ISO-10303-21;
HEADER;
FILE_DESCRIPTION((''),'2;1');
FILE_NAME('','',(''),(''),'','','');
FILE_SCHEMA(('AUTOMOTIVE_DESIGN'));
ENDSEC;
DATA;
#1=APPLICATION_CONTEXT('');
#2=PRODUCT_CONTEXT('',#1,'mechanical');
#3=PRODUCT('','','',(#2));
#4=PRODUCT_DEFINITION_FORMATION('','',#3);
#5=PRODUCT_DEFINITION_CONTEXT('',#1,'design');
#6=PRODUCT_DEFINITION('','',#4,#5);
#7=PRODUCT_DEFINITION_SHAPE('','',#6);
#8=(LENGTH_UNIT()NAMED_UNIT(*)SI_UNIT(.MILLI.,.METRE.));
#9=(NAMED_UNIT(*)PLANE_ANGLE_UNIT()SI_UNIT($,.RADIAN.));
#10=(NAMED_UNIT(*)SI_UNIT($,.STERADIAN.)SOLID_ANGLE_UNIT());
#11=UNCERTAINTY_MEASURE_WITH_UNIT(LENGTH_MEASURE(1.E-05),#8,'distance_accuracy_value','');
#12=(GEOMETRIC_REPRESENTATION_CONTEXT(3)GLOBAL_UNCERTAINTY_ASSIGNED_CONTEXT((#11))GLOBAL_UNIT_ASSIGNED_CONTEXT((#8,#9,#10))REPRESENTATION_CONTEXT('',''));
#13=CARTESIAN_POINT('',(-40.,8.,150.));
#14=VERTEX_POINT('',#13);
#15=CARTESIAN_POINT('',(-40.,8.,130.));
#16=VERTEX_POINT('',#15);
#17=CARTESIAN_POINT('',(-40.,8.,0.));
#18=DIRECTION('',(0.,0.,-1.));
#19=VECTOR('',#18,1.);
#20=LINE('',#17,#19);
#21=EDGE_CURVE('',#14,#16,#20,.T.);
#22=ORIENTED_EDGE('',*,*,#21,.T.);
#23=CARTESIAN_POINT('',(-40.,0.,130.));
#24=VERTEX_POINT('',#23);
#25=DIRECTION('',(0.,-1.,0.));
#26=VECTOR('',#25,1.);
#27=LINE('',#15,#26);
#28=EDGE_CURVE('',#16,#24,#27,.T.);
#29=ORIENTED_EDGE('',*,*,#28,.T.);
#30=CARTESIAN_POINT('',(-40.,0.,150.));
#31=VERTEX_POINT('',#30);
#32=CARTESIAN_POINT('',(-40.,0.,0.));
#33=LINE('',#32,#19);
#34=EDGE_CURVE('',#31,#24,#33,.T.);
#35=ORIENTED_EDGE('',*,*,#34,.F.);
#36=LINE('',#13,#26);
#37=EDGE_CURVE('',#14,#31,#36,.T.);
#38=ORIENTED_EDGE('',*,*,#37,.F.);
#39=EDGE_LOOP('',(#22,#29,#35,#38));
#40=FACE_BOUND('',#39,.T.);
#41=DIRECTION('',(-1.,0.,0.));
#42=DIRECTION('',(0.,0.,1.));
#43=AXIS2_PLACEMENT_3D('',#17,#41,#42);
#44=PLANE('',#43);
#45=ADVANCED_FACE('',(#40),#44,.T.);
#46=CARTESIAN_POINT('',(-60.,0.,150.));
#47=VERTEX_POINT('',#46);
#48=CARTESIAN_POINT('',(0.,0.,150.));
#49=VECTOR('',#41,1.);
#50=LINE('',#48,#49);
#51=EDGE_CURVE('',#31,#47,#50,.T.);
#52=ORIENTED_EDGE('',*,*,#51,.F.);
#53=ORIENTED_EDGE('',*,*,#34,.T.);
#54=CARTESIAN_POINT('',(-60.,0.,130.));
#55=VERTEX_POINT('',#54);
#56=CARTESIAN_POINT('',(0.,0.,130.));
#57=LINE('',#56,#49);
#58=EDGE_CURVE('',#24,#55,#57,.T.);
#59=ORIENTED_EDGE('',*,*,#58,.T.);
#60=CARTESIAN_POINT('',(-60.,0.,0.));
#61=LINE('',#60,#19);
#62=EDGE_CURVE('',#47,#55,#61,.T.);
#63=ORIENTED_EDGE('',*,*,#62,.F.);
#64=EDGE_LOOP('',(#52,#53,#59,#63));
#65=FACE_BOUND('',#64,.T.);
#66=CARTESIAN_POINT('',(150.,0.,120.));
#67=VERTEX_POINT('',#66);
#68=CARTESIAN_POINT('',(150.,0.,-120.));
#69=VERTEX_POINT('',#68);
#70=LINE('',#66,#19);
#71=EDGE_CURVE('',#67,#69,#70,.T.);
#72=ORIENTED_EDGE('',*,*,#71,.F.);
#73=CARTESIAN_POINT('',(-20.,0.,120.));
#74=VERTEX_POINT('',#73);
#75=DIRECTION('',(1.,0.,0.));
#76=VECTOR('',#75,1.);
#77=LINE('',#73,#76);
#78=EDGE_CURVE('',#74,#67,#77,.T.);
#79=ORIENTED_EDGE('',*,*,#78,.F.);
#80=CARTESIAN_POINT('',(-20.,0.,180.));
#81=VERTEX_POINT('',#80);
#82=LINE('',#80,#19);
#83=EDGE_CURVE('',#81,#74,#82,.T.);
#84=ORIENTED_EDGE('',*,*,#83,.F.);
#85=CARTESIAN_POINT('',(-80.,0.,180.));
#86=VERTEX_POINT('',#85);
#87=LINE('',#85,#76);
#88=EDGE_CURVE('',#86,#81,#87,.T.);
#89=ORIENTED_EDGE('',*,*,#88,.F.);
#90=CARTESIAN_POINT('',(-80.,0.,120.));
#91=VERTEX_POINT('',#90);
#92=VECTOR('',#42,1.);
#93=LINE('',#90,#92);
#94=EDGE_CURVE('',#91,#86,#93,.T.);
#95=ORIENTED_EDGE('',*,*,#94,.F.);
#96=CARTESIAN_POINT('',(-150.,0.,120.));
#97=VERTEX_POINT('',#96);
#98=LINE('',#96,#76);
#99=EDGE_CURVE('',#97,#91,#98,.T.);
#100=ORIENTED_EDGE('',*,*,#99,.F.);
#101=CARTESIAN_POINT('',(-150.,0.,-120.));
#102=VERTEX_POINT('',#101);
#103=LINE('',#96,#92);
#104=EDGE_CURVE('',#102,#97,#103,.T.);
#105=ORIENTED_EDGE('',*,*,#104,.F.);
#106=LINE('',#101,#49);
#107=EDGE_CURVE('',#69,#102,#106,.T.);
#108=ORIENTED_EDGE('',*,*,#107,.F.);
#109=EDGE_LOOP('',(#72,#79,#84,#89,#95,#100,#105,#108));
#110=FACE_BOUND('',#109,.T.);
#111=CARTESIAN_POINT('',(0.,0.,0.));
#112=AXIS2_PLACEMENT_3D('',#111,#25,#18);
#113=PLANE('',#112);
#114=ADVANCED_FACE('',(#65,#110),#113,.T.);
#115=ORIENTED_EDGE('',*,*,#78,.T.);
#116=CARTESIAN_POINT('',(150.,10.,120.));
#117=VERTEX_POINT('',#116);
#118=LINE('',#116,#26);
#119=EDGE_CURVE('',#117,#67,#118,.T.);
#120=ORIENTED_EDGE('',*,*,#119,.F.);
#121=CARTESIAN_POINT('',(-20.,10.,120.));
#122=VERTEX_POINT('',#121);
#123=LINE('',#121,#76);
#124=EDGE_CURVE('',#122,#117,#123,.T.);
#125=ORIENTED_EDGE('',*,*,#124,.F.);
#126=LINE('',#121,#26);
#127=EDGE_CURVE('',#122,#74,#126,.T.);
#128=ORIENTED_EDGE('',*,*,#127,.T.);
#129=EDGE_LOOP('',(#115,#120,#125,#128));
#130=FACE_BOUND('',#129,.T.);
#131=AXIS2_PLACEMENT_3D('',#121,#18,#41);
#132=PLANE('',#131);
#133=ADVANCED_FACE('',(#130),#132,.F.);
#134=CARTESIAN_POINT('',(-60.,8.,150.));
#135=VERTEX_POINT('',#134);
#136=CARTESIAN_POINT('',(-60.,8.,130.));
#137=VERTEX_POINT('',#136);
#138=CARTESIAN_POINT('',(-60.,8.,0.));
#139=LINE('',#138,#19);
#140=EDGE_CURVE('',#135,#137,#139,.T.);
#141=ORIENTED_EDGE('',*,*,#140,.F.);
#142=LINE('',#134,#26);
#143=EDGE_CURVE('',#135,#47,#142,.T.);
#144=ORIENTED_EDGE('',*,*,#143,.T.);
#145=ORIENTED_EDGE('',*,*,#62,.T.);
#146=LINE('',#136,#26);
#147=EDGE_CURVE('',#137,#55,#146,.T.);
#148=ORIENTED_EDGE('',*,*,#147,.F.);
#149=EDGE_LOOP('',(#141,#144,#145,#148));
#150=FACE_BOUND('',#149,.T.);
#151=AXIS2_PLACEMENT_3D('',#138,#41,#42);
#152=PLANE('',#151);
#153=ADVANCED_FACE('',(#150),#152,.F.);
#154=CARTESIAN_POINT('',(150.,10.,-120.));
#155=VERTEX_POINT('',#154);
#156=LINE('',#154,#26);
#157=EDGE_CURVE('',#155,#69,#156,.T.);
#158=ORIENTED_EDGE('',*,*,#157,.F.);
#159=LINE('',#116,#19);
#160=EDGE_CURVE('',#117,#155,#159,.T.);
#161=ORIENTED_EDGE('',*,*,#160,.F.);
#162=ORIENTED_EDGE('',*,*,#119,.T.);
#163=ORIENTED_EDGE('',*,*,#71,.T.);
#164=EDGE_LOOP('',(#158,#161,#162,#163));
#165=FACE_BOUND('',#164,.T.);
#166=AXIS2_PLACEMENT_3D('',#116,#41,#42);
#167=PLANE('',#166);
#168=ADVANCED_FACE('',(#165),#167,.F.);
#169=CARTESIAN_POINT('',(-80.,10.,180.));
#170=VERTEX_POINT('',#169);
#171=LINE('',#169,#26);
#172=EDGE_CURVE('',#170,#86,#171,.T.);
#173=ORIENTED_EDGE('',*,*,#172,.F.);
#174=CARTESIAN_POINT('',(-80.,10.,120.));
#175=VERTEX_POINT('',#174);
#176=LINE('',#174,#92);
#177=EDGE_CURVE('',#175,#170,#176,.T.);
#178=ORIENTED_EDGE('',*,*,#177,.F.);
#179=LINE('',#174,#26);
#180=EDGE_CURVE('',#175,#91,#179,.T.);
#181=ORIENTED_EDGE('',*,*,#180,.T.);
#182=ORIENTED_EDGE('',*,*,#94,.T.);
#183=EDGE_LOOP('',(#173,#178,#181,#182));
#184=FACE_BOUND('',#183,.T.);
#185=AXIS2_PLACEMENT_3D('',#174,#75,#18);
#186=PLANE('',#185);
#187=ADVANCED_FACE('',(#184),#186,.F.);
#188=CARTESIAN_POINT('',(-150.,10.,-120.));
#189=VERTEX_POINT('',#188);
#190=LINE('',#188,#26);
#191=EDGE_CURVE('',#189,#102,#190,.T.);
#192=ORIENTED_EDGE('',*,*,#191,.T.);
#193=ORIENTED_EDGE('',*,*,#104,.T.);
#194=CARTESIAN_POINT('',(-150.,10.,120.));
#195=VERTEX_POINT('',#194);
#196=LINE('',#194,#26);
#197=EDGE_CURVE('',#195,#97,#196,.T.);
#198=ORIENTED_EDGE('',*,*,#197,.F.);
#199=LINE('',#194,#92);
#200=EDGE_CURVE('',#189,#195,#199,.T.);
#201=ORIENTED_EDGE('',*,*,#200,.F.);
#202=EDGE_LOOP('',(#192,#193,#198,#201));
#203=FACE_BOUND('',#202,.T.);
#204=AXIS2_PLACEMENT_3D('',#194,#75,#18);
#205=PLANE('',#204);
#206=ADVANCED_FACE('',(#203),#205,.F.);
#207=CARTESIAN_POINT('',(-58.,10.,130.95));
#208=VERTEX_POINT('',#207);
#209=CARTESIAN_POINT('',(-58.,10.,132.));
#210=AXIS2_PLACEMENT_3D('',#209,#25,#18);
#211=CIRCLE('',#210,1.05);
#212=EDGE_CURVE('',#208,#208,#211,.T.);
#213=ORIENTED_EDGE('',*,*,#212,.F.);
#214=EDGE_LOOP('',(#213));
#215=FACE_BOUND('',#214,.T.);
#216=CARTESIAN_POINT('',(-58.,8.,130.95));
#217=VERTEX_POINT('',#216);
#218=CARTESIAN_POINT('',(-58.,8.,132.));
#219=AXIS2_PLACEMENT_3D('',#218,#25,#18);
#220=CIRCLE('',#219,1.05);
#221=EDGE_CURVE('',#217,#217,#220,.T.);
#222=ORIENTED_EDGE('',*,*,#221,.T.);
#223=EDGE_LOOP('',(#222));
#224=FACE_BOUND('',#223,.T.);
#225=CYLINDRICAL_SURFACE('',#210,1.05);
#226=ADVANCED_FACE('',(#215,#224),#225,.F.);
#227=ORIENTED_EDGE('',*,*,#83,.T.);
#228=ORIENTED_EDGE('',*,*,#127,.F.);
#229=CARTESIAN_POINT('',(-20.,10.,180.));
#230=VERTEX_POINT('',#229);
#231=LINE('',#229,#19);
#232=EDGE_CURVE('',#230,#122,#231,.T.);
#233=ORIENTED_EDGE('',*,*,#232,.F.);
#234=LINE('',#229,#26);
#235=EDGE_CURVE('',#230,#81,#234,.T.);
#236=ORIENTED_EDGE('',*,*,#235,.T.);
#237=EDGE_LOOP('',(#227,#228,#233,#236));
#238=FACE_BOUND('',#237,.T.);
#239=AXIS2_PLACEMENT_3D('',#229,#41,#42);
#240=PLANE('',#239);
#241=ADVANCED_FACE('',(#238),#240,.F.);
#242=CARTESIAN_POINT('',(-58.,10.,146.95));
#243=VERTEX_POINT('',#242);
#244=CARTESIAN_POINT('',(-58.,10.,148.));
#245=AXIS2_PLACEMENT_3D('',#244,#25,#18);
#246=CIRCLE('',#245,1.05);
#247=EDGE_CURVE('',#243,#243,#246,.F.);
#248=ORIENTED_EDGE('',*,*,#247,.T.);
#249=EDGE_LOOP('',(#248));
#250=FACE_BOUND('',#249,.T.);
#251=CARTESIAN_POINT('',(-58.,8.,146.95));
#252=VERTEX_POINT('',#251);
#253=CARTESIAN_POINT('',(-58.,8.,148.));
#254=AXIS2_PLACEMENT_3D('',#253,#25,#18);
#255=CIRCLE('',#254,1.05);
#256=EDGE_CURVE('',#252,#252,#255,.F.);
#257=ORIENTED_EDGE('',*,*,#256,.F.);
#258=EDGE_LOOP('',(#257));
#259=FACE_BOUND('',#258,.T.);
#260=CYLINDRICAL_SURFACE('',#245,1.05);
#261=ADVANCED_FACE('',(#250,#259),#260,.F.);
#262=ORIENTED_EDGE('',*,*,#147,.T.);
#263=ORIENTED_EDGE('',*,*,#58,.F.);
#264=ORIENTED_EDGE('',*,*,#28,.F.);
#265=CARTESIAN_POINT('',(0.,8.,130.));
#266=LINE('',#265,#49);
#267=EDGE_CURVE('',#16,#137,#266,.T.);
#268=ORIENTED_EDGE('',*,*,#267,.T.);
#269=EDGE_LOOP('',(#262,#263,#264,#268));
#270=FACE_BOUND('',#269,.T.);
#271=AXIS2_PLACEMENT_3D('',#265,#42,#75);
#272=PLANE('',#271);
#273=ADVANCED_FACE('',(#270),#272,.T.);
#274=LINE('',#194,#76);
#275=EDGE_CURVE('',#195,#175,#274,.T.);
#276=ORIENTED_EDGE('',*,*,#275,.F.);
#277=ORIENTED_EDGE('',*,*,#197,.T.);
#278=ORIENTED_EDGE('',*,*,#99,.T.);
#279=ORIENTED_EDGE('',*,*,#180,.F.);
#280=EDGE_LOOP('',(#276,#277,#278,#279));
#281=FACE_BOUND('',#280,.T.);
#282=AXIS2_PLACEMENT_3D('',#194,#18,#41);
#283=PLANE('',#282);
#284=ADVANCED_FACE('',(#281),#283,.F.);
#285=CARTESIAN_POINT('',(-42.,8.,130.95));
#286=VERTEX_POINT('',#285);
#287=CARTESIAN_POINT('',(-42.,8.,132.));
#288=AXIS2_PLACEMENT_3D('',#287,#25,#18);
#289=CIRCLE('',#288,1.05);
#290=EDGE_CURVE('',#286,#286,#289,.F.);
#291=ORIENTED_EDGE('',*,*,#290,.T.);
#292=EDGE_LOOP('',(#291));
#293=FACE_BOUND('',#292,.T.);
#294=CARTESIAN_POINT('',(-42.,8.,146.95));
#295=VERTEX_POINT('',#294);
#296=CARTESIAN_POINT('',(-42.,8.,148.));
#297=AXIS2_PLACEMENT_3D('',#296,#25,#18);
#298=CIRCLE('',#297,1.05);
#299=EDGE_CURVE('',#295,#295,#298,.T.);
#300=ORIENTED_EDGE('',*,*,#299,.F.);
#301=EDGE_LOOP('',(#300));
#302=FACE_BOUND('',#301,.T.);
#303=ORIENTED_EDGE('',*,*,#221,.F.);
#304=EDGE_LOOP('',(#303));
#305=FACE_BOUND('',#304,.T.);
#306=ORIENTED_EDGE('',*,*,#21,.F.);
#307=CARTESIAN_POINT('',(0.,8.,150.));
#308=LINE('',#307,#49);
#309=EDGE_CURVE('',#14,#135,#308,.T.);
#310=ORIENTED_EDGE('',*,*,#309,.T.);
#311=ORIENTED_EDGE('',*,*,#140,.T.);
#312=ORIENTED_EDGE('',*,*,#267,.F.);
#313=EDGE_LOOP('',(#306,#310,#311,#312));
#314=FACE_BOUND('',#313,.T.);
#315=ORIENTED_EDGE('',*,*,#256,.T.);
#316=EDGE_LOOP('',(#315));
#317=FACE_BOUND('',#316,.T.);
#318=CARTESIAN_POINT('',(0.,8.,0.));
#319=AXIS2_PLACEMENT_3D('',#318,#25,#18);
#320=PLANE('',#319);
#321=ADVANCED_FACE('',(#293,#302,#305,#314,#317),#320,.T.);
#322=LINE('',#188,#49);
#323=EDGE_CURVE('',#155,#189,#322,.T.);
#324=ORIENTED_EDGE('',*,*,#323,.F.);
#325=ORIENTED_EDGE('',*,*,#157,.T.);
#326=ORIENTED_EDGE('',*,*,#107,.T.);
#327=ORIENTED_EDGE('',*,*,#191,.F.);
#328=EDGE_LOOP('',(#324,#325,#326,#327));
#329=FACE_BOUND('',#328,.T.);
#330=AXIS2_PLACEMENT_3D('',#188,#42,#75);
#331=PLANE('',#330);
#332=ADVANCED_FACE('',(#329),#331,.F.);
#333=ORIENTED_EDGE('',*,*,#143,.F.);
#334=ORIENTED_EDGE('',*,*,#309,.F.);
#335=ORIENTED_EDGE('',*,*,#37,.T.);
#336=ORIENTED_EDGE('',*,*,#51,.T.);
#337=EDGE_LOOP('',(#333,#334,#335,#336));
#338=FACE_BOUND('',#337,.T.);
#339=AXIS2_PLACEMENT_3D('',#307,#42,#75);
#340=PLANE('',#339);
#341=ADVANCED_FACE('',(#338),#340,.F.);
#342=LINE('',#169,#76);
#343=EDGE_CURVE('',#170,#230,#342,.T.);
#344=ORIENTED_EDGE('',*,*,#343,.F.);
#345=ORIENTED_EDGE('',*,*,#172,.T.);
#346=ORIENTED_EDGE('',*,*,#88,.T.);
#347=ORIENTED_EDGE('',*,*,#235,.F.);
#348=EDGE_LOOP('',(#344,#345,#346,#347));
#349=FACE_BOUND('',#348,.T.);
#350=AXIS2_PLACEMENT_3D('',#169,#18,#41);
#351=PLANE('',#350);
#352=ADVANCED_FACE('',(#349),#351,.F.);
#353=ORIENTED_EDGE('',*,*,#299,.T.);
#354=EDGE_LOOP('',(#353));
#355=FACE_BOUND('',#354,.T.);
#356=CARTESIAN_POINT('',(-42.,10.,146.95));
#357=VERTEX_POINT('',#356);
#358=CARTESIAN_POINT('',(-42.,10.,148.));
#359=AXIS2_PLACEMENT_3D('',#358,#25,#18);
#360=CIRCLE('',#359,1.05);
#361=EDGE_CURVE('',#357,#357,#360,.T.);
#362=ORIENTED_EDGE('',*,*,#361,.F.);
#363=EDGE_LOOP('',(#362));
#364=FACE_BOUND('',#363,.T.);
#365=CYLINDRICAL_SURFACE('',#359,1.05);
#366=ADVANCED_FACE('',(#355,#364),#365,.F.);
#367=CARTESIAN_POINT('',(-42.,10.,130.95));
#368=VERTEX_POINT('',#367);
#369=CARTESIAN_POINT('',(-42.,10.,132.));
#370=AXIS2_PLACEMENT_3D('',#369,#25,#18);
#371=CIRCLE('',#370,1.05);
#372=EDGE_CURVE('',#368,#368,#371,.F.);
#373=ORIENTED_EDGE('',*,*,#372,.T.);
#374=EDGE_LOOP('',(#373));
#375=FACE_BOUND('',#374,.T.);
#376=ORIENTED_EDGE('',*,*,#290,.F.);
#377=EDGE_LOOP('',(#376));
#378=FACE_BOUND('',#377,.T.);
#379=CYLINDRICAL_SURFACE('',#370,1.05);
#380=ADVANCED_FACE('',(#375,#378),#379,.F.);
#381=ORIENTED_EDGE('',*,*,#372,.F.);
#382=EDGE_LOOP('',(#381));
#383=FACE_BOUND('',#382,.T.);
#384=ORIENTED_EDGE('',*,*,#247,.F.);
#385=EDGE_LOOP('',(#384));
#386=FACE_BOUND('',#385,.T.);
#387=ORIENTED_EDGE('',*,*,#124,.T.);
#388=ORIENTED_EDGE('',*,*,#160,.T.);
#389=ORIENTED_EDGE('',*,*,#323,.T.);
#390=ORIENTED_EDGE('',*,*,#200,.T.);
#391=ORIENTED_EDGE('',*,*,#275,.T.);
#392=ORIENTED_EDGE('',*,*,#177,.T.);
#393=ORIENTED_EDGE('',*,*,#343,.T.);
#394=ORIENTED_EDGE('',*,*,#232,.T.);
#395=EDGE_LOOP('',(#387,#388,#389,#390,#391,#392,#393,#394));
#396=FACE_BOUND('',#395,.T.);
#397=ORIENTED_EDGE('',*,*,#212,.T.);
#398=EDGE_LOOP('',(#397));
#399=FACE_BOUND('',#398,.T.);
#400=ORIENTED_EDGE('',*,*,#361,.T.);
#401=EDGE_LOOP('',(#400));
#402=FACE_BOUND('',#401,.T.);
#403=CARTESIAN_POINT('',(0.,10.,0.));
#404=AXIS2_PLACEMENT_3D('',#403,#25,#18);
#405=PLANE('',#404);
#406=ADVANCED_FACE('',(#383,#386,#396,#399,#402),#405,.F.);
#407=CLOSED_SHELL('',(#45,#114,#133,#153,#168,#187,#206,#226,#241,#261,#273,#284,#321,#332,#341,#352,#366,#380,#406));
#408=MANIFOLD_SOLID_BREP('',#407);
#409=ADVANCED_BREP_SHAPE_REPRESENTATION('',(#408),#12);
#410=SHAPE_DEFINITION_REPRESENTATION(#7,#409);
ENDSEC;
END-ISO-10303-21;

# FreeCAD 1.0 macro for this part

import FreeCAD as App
import Part
import Sketcher
from FreeCAD import Vector
Q = App.Units.Quantity


def add_polygon(sketch, points):
    """Adds a closed chain of lines whose ends are joined by coincident constraints."""
    first, n = sketch.GeometryCount, len(points)
    for a, b in zip(points, points[1:] + points[:1]):
        sketch.addGeometry(Part.LineSegment(App.Vector(*a, 0), App.Vector(*b, 0)), False)
    for i in range(n):
        sketch.addConstraint(Sketcher.Constraint("Coincident", first + i, 2, first + (i + 1) % n, 1))

doc = App.newDocument("Part")
body = doc.addObject("PartDesign::Body", "Body")

# Sketch on XZ plane
sketch1 = doc.addObject("Sketcher::SketchObject", "Sketch")
body.addObject(sketch1)
sketch1.AttachmentSupport = (doc.XZ_Plane, [""])
sketch1.MapMode = "FlatFace"
add_polygon(sketch1, [(-150, 120), (-80, 120), (-80, 180), (-20, 180), (-20, 120), (150, 120), (150, -120), (-150, -120)])  # lines 0-7
sketch1.addConstraint(Sketcher.Constraint("Horizontal", 0))
sketch1.addConstraint(Sketcher.Constraint("Vertical", 1))
sketch1.addConstraint(Sketcher.Constraint("Horizontal", 2))
sketch1.addConstraint(Sketcher.Constraint("Vertical", 3))
sketch1.addConstraint(Sketcher.Constraint("Horizontal", 4))
sketch1.addConstraint(Sketcher.Constraint("Vertical", 5))
sketch1.addConstraint(Sketcher.Constraint("Horizontal", 6))
sketch1.addConstraint(Sketcher.Constraint("Vertical", 7))
sketch1.addConstraint(Sketcher.Constraint("Symmetric", 4, 2, 6, 2, -1, 1))
sketch1.addConstraint(Sketcher.Constraint("Horizontal", 0, 2, 3, 2))
sketch1.addConstraint(Sketcher.Constraint("Equal", 2, 1))
sketch1.addConstraint(Sketcher.Constraint("DistanceX", 0, 1, 0, 2, Q("70 mm")))
sketch1.addConstraint(Sketcher.Constraint("DistanceX", 2, 1, 2, 2, Q("60 mm")))
sketch1.addConstraint(Sketcher.Constraint("DistanceX", 4, 1, 4, 2, Q("170 mm")))
sketch1.addConstraint(Sketcher.Constraint("DistanceY", 5, 2, 5, 1, Q("240 mm")))
pad1 = doc.addObject("PartDesign::Pad", "Pad")
body.addObject(pad1)
pad1.Profile = sketch1
pad1.Length = 10
pad1.Reversed = True

# Sketch on XZ plane
sketch2 = doc.addObject("Sketcher::SketchObject", "Sketch001")
body.addObject(sketch2)
sketch2.AttachmentSupport = (doc.XZ_Plane, [""])
sketch2.MapMode = "FlatFace"
add_polygon(sketch2, [(-60, 150), (-60, 130), (-40, 130), (-40, 150)])  # lines 0-3
sketch2.addGeometry(Part.Circle(Vector(-58, 132, 0), Vector(0, 0, 1), 1.1), False)  # 4
sketch2.addGeometry(Part.Circle(Vector(-42, 132, 0), Vector(0, 0, 1), 1.1), False)  # 5
sketch2.addGeometry(Part.Circle(Vector(-58, 148, 0), Vector(0, 0, 1), 1.1), False)  # 6
sketch2.addGeometry(Part.Circle(Vector(-42, 148, 0), Vector(0, 0, 1), 1.1), False)  # 7
sketch2.addConstraint(Sketcher.Constraint("Vertical", 0))
sketch2.addConstraint(Sketcher.Constraint("Horizontal", 1))
sketch2.addConstraint(Sketcher.Constraint("Vertical", 2))
sketch2.addConstraint(Sketcher.Constraint("Horizontal", 3))
sketch2.addConstraint(Sketcher.Constraint("Equal", 4, 5))
sketch2.addConstraint(Sketcher.Constraint("Equal", 5, 6))
sketch2.addConstraint(Sketcher.Constraint("Equal", 6, 7))
sketch2.addConstraint(Sketcher.Constraint("Horizontal", 4, 3, 5, 3))
sketch2.addConstraint(Sketcher.Constraint("Horizontal", 6, 3, 7, 3))
sketch2.addConstraint(Sketcher.Constraint("Vertical", 4, 3, 6, 3))
sketch2.addConstraint(Sketcher.Constraint("Vertical", 5, 3, 7, 3))
sketch2.addConstraint(Sketcher.Constraint("Equal", 3, 0))
sketch2.addConstraint(Sketcher.Constraint("Diameter", 4, Q("2.1 mm")))
sketch2.addConstraint(Sketcher.Constraint("DistanceX", 1, 1, 1, 2, Q("20 mm")))
sketch2.addConstraint(Sketcher.Constraint("DistanceX", 4, 3, -1, 1, Q("58 mm")))
sketch2.addConstraint(Sketcher.Constraint("DistanceY", -1, 1, 4, 3, Q("132 mm")))
sketch2.addConstraint(Sketcher.Constraint("DistanceX", 5, 3, -1, 1, Q("42 mm")))
sketch2.addConstraint(Sketcher.Constraint("DistanceY", -1, 1, 6, 3, Q("148 mm")))
sketch2.addConstraint(Sketcher.Constraint("DistanceX", 0, 2, -1, 1, Q("60 mm")))
sketch2.addConstraint(Sketcher.Constraint("DistanceY", -1, 1, 0, 2, Q("130 mm")))
pocket1 = doc.addObject("PartDesign::Pocket", "Pocket")
body.addObject(pocket1)
pocket1.Profile = sketch2
pocket1.Length = 8

# Sketch on XZ plane
sketch3 = doc.addObject("Sketcher::SketchObject", "Sketch002")
body.addObject(sketch3)
sketch3.AttachmentSupport = (doc.XZ_Plane, [""])
sketch3.MapMode = "FlatFace"
sketch3.addGeometry(Part.Circle(Vector(-42, 132, 0), Vector(0, 0, 1), 1.1), False)
sketch3.addGeometry(Part.Circle(Vector(-58, 132, 0), Vector(0, 0, 1), 1.1), False)
sketch3.addGeometry(Part.Circle(Vector(-58, 148, 0), Vector(0, 0, 1), 1.1), False)
sketch3.addGeometry(Part.Circle(Vector(-42, 148, 0), Vector(0, 0, 1), 1.1), False)
sketch3.addConstraint(Sketcher.Constraint("Equal", 0, 1))
sketch3.addConstraint(Sketcher.Constraint("Equal", 1, 2))
sketch3.addConstraint(Sketcher.Constraint("Equal", 2, 3))
sketch3.addConstraint(Sketcher.Constraint("Horizontal", 0, 3, 1, 3))
sketch3.addConstraint(Sketcher.Constraint("Horizontal", 2, 3, 3, 3))
sketch3.addConstraint(Sketcher.Constraint("Vertical", 1, 3, 2, 3))
sketch3.addConstraint(Sketcher.Constraint("Vertical", 0, 3, 3, 3))
sketch3.addConstraint(Sketcher.Constraint("Diameter", 0, Q("2.1 mm")))
sketch3.addConstraint(Sketcher.Constraint("DistanceX", 0, 3, -1, 1, Q("42 mm")))
sketch3.addConstraint(Sketcher.Constraint("DistanceY", -1, 1, 0, 3, Q("132 mm")))
sketch3.addConstraint(Sketcher.Constraint("DistanceX", 1, 3, -1, 1, Q("58 mm")))
sketch3.addConstraint(Sketcher.Constraint("DistanceY", -1, 1, 2, 3, Q("148 mm")))
pocket2 = doc.addObject("PartDesign::Pocket", "Pocket001")
body.addObject(pocket2)
pocket2.Profile = sketch3
pocket2.Type = "ThroughAll"

doc.recompute()
